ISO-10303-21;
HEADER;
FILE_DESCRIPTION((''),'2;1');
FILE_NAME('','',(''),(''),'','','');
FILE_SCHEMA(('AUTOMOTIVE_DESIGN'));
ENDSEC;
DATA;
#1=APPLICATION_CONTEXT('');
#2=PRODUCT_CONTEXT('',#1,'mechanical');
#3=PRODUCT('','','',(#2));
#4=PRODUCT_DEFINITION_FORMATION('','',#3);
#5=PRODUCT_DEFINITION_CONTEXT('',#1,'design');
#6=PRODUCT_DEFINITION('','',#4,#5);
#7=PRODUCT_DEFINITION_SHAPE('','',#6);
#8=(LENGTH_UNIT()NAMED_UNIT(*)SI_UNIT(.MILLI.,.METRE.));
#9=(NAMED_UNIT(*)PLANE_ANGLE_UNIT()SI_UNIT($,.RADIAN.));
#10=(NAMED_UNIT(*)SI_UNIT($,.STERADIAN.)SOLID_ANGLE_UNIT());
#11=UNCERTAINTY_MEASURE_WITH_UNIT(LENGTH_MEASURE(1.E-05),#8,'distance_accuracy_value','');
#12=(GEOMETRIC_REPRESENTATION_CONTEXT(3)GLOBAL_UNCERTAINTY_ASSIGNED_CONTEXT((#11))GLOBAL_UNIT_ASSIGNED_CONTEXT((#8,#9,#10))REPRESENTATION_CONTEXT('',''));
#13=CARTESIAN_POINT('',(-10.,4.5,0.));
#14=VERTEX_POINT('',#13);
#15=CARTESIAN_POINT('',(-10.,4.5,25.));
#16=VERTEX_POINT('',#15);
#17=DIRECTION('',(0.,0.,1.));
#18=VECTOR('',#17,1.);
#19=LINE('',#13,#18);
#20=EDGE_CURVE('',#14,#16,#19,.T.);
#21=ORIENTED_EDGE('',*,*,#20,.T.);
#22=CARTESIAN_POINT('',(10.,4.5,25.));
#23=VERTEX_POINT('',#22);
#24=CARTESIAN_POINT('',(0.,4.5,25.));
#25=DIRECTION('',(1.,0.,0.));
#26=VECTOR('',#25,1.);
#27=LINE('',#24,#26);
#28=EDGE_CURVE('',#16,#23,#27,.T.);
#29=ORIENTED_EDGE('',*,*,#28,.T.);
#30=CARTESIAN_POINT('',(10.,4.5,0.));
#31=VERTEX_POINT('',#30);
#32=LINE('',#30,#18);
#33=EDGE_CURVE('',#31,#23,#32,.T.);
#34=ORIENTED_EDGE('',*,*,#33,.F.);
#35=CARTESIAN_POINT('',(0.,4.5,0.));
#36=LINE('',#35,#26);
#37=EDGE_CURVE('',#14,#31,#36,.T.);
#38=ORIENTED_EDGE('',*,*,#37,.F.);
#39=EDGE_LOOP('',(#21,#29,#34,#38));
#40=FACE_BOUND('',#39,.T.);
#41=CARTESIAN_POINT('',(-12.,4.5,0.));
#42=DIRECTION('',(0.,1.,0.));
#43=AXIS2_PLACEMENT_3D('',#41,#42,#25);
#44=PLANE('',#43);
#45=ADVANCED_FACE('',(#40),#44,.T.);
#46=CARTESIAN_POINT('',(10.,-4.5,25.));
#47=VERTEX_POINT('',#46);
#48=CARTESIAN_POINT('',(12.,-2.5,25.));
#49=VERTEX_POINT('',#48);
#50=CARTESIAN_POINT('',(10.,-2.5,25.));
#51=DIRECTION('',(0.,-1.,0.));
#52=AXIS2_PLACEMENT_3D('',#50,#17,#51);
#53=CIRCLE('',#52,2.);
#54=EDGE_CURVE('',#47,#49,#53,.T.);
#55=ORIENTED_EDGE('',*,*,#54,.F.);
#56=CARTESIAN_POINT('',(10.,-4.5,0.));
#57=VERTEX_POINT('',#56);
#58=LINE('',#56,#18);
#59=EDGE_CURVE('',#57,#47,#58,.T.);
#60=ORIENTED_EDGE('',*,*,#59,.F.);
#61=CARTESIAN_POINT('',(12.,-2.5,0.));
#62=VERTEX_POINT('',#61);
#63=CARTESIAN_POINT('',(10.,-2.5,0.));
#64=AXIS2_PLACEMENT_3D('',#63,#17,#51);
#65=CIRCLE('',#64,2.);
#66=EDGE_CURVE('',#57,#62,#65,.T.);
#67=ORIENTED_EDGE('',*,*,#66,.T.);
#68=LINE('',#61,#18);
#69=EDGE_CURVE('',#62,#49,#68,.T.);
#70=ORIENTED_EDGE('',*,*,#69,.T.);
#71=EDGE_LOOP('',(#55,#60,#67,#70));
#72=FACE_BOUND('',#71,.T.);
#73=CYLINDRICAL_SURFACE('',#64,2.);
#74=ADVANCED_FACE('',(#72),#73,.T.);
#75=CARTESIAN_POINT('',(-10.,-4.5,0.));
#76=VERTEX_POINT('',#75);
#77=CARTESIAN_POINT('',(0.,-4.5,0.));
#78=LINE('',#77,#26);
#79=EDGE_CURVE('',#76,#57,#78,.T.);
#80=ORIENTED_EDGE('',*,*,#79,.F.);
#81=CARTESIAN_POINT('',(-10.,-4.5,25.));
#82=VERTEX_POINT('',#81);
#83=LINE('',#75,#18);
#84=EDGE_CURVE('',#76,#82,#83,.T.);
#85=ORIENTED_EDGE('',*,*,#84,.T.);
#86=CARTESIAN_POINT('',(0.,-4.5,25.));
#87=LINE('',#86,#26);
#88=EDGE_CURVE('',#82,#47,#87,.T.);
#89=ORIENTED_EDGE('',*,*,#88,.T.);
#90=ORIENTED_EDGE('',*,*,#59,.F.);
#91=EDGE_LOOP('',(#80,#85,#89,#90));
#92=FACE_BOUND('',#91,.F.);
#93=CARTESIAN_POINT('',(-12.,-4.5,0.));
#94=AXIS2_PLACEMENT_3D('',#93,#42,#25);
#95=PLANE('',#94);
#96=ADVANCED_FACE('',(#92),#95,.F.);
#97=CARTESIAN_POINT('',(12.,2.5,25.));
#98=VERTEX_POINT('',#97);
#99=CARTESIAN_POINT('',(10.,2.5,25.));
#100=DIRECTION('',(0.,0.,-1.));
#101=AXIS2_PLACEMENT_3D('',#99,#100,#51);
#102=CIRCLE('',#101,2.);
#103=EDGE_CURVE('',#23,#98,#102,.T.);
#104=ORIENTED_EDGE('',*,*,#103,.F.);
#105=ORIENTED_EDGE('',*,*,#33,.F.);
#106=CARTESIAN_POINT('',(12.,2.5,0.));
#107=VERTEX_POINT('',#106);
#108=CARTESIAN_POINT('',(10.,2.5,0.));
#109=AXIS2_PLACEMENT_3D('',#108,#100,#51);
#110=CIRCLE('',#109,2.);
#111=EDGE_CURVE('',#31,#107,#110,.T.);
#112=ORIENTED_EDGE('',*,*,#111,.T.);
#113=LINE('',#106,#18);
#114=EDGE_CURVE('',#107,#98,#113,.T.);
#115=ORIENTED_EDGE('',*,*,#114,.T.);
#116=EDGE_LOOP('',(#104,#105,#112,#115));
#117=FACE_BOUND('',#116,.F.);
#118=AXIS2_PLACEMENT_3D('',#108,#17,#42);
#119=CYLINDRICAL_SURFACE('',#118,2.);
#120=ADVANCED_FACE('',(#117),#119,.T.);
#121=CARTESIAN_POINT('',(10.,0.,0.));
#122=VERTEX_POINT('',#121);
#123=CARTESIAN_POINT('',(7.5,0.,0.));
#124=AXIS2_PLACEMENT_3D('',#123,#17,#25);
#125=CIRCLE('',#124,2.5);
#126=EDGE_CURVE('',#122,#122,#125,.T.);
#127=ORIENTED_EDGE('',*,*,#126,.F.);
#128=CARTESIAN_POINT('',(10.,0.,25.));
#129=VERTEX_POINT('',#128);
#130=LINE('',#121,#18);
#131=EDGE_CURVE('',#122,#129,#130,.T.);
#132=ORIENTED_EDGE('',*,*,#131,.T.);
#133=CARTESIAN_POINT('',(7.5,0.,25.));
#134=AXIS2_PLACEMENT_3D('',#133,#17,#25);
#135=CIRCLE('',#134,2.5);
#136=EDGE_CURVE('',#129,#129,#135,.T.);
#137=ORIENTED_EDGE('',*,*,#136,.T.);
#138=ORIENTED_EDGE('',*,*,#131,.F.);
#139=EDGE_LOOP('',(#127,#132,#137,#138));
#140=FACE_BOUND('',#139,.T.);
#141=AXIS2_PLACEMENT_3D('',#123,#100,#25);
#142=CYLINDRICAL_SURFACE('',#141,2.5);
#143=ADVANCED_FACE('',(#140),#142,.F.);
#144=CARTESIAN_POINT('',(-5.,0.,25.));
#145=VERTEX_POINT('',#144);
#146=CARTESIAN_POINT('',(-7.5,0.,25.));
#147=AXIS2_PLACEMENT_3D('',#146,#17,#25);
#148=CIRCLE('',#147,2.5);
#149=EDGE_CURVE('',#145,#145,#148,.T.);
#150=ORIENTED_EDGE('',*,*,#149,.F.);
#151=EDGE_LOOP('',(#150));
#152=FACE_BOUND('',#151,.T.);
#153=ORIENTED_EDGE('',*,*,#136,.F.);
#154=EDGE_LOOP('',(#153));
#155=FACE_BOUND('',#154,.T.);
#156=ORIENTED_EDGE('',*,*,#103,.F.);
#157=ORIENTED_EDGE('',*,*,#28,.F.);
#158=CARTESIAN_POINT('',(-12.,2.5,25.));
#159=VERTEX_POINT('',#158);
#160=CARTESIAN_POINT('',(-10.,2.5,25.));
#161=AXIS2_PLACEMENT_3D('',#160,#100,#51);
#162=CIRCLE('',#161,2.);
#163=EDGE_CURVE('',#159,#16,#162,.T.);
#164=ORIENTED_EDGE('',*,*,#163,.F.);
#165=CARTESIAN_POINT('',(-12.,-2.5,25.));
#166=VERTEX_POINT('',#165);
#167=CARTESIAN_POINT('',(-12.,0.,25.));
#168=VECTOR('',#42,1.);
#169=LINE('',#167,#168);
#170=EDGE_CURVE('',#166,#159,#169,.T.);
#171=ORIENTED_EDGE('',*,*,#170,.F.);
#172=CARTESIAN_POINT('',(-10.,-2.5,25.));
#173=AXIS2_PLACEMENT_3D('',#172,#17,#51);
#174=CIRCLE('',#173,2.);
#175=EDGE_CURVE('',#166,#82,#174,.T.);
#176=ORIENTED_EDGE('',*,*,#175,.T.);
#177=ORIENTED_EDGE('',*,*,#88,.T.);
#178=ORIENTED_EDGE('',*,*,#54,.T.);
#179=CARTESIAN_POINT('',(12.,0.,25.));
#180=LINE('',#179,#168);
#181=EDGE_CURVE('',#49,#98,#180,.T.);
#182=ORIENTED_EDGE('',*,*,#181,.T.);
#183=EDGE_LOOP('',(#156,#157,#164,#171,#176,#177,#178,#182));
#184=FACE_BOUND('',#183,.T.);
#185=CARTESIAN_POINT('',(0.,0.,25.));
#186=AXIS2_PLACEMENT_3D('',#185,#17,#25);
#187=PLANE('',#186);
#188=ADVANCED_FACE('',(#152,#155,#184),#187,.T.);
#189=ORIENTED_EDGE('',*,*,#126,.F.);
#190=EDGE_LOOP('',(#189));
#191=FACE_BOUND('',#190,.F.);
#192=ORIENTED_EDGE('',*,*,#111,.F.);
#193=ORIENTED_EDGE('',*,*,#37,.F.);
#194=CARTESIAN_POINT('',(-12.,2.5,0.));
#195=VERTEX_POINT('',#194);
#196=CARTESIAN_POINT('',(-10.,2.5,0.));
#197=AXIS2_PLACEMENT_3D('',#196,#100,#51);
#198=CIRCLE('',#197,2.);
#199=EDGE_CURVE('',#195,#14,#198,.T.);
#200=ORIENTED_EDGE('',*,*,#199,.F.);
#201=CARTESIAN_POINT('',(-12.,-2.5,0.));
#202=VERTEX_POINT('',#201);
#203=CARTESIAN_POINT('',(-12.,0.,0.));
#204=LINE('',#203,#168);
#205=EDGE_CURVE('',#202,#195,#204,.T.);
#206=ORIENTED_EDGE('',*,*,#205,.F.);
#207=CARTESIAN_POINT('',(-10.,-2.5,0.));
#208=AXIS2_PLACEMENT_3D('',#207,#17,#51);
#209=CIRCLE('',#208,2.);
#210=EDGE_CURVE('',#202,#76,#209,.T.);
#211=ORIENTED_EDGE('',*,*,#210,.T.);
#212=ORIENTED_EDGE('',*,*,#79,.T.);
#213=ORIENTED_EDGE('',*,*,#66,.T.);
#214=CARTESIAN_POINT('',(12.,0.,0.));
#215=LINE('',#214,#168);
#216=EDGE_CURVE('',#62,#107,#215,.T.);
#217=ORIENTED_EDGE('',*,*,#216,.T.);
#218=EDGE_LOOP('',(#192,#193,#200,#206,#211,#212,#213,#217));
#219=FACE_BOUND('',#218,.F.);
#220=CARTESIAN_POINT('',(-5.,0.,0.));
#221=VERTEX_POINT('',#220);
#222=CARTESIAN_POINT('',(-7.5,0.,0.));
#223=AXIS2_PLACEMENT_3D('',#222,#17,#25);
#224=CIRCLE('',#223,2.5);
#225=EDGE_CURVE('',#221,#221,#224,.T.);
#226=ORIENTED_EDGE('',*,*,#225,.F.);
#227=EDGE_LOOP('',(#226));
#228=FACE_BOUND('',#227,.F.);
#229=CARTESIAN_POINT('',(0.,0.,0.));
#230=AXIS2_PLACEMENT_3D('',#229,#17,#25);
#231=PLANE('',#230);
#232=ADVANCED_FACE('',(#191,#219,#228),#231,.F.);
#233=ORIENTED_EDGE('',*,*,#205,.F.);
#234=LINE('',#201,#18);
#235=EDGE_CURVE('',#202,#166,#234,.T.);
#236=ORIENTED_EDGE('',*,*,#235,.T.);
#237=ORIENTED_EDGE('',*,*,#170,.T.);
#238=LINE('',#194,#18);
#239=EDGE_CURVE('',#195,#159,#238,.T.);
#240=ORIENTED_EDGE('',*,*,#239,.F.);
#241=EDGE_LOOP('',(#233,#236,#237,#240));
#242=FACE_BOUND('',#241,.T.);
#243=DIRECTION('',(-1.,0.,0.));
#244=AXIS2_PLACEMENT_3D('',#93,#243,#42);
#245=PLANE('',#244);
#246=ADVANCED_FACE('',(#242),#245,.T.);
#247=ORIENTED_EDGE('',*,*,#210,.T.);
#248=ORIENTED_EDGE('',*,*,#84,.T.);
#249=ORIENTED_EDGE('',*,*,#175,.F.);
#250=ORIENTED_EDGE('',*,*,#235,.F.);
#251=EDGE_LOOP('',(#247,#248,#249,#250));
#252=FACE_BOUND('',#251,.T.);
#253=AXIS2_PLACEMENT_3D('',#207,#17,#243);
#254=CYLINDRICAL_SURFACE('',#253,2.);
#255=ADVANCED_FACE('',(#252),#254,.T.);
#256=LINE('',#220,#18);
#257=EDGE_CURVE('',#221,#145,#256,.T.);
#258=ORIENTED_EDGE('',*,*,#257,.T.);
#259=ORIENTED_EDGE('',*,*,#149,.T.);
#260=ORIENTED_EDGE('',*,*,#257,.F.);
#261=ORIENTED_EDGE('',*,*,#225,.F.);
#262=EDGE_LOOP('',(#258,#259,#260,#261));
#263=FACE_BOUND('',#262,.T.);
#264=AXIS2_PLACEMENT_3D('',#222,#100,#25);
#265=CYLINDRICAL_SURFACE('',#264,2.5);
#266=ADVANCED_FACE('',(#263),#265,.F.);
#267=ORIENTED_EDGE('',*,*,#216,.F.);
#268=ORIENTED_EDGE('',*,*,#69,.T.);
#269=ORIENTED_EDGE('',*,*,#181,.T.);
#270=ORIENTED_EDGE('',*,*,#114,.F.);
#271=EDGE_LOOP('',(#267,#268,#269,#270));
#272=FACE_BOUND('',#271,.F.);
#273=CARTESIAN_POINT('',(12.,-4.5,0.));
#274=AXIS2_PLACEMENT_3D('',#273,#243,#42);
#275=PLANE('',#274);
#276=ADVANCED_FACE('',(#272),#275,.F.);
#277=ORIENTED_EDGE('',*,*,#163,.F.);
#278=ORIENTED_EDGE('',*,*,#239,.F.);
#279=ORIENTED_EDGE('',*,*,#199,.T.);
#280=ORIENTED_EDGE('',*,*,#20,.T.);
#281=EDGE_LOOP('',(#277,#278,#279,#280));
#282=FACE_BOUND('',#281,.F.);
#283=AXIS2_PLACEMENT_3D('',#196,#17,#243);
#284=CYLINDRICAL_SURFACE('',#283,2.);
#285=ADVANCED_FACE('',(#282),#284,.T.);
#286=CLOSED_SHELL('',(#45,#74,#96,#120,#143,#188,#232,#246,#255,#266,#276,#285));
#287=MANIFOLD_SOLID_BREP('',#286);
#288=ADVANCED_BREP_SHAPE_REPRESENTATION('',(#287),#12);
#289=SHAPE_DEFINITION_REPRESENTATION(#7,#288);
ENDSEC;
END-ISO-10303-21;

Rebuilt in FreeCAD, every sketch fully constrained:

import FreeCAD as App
import Part
import Sketcher
from FreeCAD import Vector


def edges_at(feature, points):
    """Names of the edges that pass closest to the given points."""
    edges = feature.Shape.Edges
    near = lambda p: min(range(len(edges)), key=lambda i: edges[i].distToShape(Part.Vertex(*p))[0])
    return sorted({f"Edge{near(p) + 1}" for p in points})

doc = App.newDocument("Part")
body = doc.addObject("PartDesign::Body", "Body")

# Sketch on XY plane
sketch1 = body.newObject("Sketcher::SketchObject", "Sketch")
sketch1.AttachmentSupport = (doc.getObject("XY_Plane"), [""])
sketch1.MapMode = "FlatFace"
sketch1.addGeometry([
    Part.LineSegment(Vector(-12, 4.5, 0), Vector(-12, -4.5, 0)),  # 0
    Part.LineSegment(Vector(-12, -4.5, 0), Vector(12, -4.5, 0)),  # 1
    Part.LineSegment(Vector(12, -4.5, 0), Vector(12, 4.5, 0)),  # 2
    Part.LineSegment(Vector(12, 4.5, 0), Vector(-12, 4.5, 0)),  # 3
    Part.Circle(Vector(-7.5, 0, 0), Vector(0, 0, 1), 2.5),  # 4
    Part.Circle(Vector(7.5, 0, 0), Vector(0, 0, 1), 2.5),  # 5
], False)
sketch1.addConstraint([
    Sketcher.Constraint("Coincident", 0, 2, 1, 1),
    Sketcher.Constraint("Coincident", 1, 2, 2, 1),
    Sketcher.Constraint("Coincident", 2, 2, 3, 1),
    Sketcher.Constraint("Coincident", 3, 2, 0, 1),
    Sketcher.Constraint("Vertical", 0),
    Sketcher.Constraint("Horizontal", 1),
    Sketcher.Constraint("Vertical", 2),
    Sketcher.Constraint("Horizontal", 3),
    Sketcher.Constraint("Equal", 4, 5),
    Sketcher.Constraint("Symmetric", 4, 3, 5, 3, -1, 1),
    Sketcher.Constraint("Symmetric", 0, 2, 2, 2, -1, 1),
    Sketcher.Constraint("PointOnObject", 4, 3, -1),
    Sketcher.Constraint("Diameter", 4, 5.0),
    Sketcher.Constraint("DistanceX", 1, 1, 1, 2, 24.0),
    Sketcher.Constraint("DistanceY", 0, 2, 0, 1, 9.0),
    Sketcher.Constraint("DistanceX", 4, 3, 5, 3, 15.0),
])
pad1 = body.newObject("PartDesign::Pad", "Pad")
pad1.Profile = sketch1
pad1.Length = 25
doc.recompute()

fillet = body.newObject("PartDesign::Fillet", "Fillet")
fillet.Base = (pad1, edges_at(pad1, [
    (-12, 4.5, 12.5),
    (12, 4.5, 12.5),
    (12, -4.5, 12.5),
    (-12, -4.5, 12.5),
]))
fillet.Radius = 2

doc.recompute()
